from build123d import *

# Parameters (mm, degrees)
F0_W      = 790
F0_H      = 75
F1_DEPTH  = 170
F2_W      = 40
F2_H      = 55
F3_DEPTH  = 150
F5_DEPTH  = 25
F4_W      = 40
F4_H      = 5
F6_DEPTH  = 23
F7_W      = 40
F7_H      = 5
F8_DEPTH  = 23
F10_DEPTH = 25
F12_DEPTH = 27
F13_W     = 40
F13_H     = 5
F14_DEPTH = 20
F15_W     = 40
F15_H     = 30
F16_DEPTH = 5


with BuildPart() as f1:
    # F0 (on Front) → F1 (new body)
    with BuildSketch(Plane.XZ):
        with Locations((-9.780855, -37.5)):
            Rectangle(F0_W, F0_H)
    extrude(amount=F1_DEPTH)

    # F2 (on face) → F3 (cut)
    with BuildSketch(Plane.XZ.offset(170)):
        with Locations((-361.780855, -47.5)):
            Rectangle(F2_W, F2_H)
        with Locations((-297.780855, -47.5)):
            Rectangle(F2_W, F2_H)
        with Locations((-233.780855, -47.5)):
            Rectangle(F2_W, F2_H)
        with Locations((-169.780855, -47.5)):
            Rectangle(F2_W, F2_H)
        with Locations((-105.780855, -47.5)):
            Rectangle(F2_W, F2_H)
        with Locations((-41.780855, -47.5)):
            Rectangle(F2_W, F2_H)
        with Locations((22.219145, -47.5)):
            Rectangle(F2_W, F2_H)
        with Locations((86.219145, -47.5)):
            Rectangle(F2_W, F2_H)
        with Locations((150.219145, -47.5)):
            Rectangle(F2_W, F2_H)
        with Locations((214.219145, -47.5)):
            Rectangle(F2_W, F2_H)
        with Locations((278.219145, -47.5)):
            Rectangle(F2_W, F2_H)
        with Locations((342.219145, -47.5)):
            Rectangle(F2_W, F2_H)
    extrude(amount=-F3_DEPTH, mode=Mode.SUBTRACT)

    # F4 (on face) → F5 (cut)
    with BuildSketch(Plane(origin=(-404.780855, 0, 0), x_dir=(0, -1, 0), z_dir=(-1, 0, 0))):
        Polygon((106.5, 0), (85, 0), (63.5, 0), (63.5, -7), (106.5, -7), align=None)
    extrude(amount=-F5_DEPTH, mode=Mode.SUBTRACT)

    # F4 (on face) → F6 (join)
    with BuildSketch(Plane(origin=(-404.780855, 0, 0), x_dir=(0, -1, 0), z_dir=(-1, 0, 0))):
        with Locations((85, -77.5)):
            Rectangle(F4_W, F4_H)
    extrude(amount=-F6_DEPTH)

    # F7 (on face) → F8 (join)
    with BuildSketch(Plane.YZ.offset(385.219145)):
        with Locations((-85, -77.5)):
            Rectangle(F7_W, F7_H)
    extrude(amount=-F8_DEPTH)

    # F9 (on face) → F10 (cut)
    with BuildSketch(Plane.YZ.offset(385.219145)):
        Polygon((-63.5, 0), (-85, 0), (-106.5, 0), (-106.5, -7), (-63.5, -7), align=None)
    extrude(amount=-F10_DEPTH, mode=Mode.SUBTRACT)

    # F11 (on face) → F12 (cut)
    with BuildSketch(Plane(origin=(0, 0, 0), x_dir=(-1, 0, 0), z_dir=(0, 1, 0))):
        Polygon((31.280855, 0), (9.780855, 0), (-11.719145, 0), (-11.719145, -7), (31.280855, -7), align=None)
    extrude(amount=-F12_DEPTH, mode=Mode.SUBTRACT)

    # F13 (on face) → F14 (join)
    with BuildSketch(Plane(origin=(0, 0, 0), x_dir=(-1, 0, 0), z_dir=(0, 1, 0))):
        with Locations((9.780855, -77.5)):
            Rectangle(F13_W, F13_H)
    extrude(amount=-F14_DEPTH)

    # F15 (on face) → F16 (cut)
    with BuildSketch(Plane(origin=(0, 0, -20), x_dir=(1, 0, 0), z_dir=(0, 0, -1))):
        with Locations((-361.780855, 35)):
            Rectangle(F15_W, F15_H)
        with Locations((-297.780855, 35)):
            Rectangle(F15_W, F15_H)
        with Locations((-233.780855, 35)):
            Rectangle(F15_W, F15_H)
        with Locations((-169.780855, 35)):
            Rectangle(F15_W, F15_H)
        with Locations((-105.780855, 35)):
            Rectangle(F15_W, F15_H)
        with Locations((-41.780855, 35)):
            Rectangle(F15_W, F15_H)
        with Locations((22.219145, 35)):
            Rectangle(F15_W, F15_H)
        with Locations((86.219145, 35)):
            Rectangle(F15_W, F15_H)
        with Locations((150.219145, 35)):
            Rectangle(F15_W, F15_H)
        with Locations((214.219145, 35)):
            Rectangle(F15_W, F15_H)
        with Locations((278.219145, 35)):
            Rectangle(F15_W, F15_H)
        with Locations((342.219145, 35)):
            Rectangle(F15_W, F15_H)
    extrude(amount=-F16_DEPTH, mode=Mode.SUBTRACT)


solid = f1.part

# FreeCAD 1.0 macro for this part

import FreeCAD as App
import Part
import Sketcher
from FreeCAD import Vector
Q = App.Units.Quantity

doc = App.newDocument("Part")
body = doc.addObject("PartDesign::Body", "Body")

# Sketch on XZ plane
sketch1 = body.newObject("Sketcher::SketchObject", "Sketch")
sketch1.AttachmentSupport = (doc.getObject("XZ_Plane"), [""])
sketch1.MapMode = "FlatFace"
sketch1.addGeometry([
    Part.LineSegment(Vector(-405, 0, 0), Vector(-405, -75, 0)),
    Part.LineSegment(Vector(-405, -75, 0), Vector(385, -75, 0)),
    Part.LineSegment(Vector(385, -75, 0), Vector(385, 0, 0)),
    Part.LineSegment(Vector(385, 0, 0), Vector(-405, 0, 0)),
], False)
sketch1.addConstraint([
    Sketcher.Constraint("Coincident", 0, 2, 1, 1),
    Sketcher.Constraint("Coincident", 1, 2, 2, 1),
    Sketcher.Constraint("Coincident", 2, 2, 3, 1),
    Sketcher.Constraint("Coincident", 3, 2, 0, 1),
    Sketcher.Constraint("Vertical", 0),
    Sketcher.Constraint("Horizontal", 1),
    Sketcher.Constraint("Vertical", 2),
    Sketcher.Constraint("Horizontal", 3),
    Sketcher.Constraint("PointOnObject", 2, 2, -1),
    Sketcher.Constraint("DistanceX", 1, 1, 1, 2, Q("790 mm")),
    Sketcher.Constraint("DistanceY", 0, 2, 0, 1, Q("75 mm")),
    Sketcher.Constraint("DistanceX", 0, 2, -1, 1, Q("404.780855 mm")),
])
pad1 = body.newObject("PartDesign::Pad", "Pad")
pad1.Profile = sketch1
pad1.Length = 170

# Sketch on XZ plane
sketch2 = body.newObject("Sketcher::SketchObject", "Sketch001")
sketch2.AttachmentSupport = (doc.getObject("XZ_Plane"), [""])
sketch2.MapMode = "FlatFace"
sketch2.AttachmentOffset = App.Placement(Vector(0, 0, 170), App.Rotation())
sketch2.addGeometry([
    Part.LineSegment(Vector(-382, -20, 0), Vector(-382, -75, 0)),  # 0
    Part.LineSegment(Vector(-382, -75, 0), Vector(-342, -75, 0)),  # 1
    Part.LineSegment(Vector(-342, -75, 0), Vector(-342, -20, 0)),  # 2
    Part.LineSegment(Vector(-342, -20, 0), Vector(-382, -20, 0)),  # 3
    Part.LineSegment(Vector(-318, -20, 0), Vector(-318, -75, 0)),  # 4
    Part.LineSegment(Vector(-318, -75, 0), Vector(-278, -75, 0)),  # 5
    Part.LineSegment(Vector(-278, -75, 0), Vector(-278, -20, 0)),  # 6
    Part.LineSegment(Vector(-278, -20, 0), Vector(-318, -20, 0)),  # 7
    Part.LineSegment(Vector(-254, -20, 0), Vector(-254, -75, 0)),  # 8
    Part.LineSegment(Vector(-254, -75, 0), Vector(-214, -75, 0)),  # 9
    Part.LineSegment(Vector(-214, -75, 0), Vector(-214, -20, 0)),  # 10
    Part.LineSegment(Vector(-214, -20, 0), Vector(-254, -20, 0)),  # 11
    Part.LineSegment(Vector(-190, -20, 0), Vector(-190, -75, 0)),  # 12
    Part.LineSegment(Vector(-190, -75, 0), Vector(-150, -75, 0)),  # 13
    Part.LineSegment(Vector(-150, -75, 0), Vector(-150, -20, 0)),  # 14
    Part.LineSegment(Vector(-150, -20, 0), Vector(-190, -20, 0)),  # 15
    Part.LineSegment(Vector(-126, -20, 0), Vector(-126, -75, 0)),  # 16
    Part.LineSegment(Vector(-126, -75, 0), Vector(-86, -75, 0)),  # 17
    Part.LineSegment(Vector(-86, -75, 0), Vector(-86, -20, 0)),  # 18
    Part.LineSegment(Vector(-86, -20, 0), Vector(-126, -20, 0)),  # 19
    Part.LineSegment(Vector(-62, -20, 0), Vector(-62, -75, 0)),  # 20
    Part.LineSegment(Vector(-62, -75, 0), Vector(-22, -75, 0)),  # 21
    Part.LineSegment(Vector(-22, -75, 0), Vector(-22, -20, 0)),  # 22
    Part.LineSegment(Vector(-22, -20, 0), Vector(-62, -20, 0)),  # 23
    Part.LineSegment(Vector(2, -20, 0), Vector(2, -75, 0)),  # 24
    Part.LineSegment(Vector(2, -75, 0), Vector(42, -75, 0)),  # 25
    Part.LineSegment(Vector(42, -75, 0), Vector(42, -20, 0)),  # 26
    Part.LineSegment(Vector(42, -20, 0), Vector(2, -20, 0)),  # 27
    Part.LineSegment(Vector(66, -20, 0), Vector(66, -75, 0)),  # 28
    Part.LineSegment(Vector(66, -75, 0), Vector(106, -75, 0)),  # 29
    Part.LineSegment(Vector(106, -75, 0), Vector(106, -20, 0)),  # 30
    Part.LineSegment(Vector(106, -20, 0), Vector(66, -20, 0)),  # 31
    Part.LineSegment(Vector(130, -20, 0), Vector(130, -75, 0)),  # 32
    Part.LineSegment(Vector(130, -75, 0), Vector(170, -75, 0)),  # 33
    Part.LineSegment(Vector(170, -75, 0), Vector(170, -20, 0)),  # 34
    Part.LineSegment(Vector(170, -20, 0), Vector(130, -20, 0)),  # 35
    Part.LineSegment(Vector(194, -20, 0), Vector(194, -75, 0)),  # 36
    Part.LineSegment(Vector(194, -75, 0), Vector(234, -75, 0)),  # 37
    Part.LineSegment(Vector(234, -75, 0), Vector(234, -20, 0)),  # 38
    Part.LineSegment(Vector(234, -20, 0), Vector(194, -20, 0)),  # 39
    Part.LineSegment(Vector(258, -20, 0), Vector(258, -75, 0)),  # 40
    Part.LineSegment(Vector(258, -75, 0), Vector(298, -75, 0)),  # 41
    Part.LineSegment(Vector(298, -75, 0), Vector(298, -20, 0)),  # 42
    Part.LineSegment(Vector(298, -20, 0), Vector(258, -20, 0)),  # 43
    Part.LineSegment(Vector(322, -20, 0), Vector(322, -75, 0)),  # 44
    Part.LineSegment(Vector(322, -75, 0), Vector(362, -75, 0)),  # 45
    Part.LineSegment(Vector(362, -75, 0), Vector(362, -20, 0)),  # 46
    Part.LineSegment(Vector(362, -20, 0), Vector(322, -20, 0)),  # 47
], False)
sketch2.addConstraint([
    Sketcher.Constraint("Coincident", 0, 2, 1, 1),
    Sketcher.Constraint("Coincident", 1, 2, 2, 1),
    Sketcher.Constraint("Coincident", 2, 2, 3, 1),
    Sketcher.Constraint("Coincident", 3, 2, 0, 1),
    Sketcher.Constraint("Coincident", 4, 2, 5, 1),
    Sketcher.Constraint("Coincident", 5, 2, 6, 1),
    Sketcher.Constraint("Coincident", 6, 2, 7, 1),
    Sketcher.Constraint("Coincident", 7, 2, 4, 1),
    Sketcher.Constraint("Coincident", 8, 2, 9, 1),
    Sketcher.Constraint("Coincident", 9, 2, 10, 1),
    Sketcher.Constraint("Coincident", 10, 2, 11, 1),
    Sketcher.Constraint("Coincident", 11, 2, 8, 1),
    Sketcher.Constraint("Coincident", 12, 2, 13, 1),
    Sketcher.Constraint("Coincident", 13, 2, 14, 1),
    Sketcher.Constraint("Coincident", 14, 2, 15, 1),
    Sketcher.Constraint("Coincident", 15, 2, 12, 1),
    Sketcher.Constraint("Coincident", 16, 2, 17, 1),
    Sketcher.Constraint("Coincident", 17, 2, 18, 1),
    Sketcher.Constraint("Coincident", 18, 2, 19, 1),
    Sketcher.Constraint("Coincident", 19, 2, 16, 1),
    Sketcher.Constraint("Coincident", 20, 2, 21, 1),
    Sketcher.Constraint("Coincident", 21, 2, 22, 1),
    Sketcher.Constraint("Coincident", 22, 2, 23, 1),
    Sketcher.Constraint("Coincident", 23, 2, 20, 1),
    Sketcher.Constraint("Coincident", 24, 2, 25, 1),
    Sketcher.Constraint("Coincident", 25, 2, 26, 1),
    Sketcher.Constraint("Coincident", 26, 2, 27, 1),
    Sketcher.Constraint("Coincident", 27, 2, 24, 1),
    Sketcher.Constraint("Coincident", 28, 2, 29, 1),
    Sketcher.Constraint("Coincident", 29, 2, 30, 1),
    Sketcher.Constraint("Coincident", 30, 2, 31, 1),
    Sketcher.Constraint("Coincident", 31, 2, 28, 1),
    Sketcher.Constraint("Coincident", 32, 2, 33, 1),
    Sketcher.Constraint("Coincident", 33, 2, 34, 1),
    Sketcher.Constraint("Coincident", 34, 2, 35, 1),
    Sketcher.Constraint("Coincident", 35, 2, 32, 1),
    Sketcher.Constraint("Coincident", 36, 2, 37, 1),
    Sketcher.Constraint("Coincident", 37, 2, 38, 1),
    Sketcher.Constraint("Coincident", 38, 2, 39, 1),
    Sketcher.Constraint("Coincident", 39, 2, 36, 1),
    Sketcher.Constraint("Coincident", 40, 2, 41, 1),
    Sketcher.Constraint("Coincident", 41, 2, 42, 1),
    Sketcher.Constraint("Coincident", 42, 2, 43, 1),
    Sketcher.Constraint("Coincident", 43, 2, 40, 1),
    Sketcher.Constraint("Coincident", 44, 2, 45, 1),
    Sketcher.Constraint("Coincident", 45, 2, 46, 1),
    Sketcher.Constraint("Coincident", 46, 2, 47, 1),
    Sketcher.Constraint("Coincident", 47, 2, 44, 1),
    Sketcher.Constraint("Vertical", 0),
    Sketcher.Constraint("Horizontal", 1),
    Sketcher.Constraint("Vertical", 2),
    Sketcher.Constraint("Horizontal", 3),
    Sketcher.Constraint("Vertical", 4),
    Sketcher.Constraint("Horizontal", 5),
    Sketcher.Constraint("Vertical", 6),
    Sketcher.Constraint("Horizontal", 7),
    Sketcher.Constraint("Vertical", 8),
    Sketcher.Constraint("Horizontal", 9),
    Sketcher.Constraint("Vertical", 10),
    Sketcher.Constraint("Horizontal", 11),
    Sketcher.Constraint("Vertical", 12),
    Sketcher.Constraint("Horizontal", 13),
    Sketcher.Constraint("Vertical", 14),
    Sketcher.Constraint("Horizontal", 15),
    Sketcher.Constraint("Vertical", 16),
    Sketcher.Constraint("Horizontal", 17),
    Sketcher.Constraint("Vertical", 18),
    Sketcher.Constraint("Horizontal", 19),
    Sketcher.Constraint("Vertical", 20),
    Sketcher.Constraint("Horizontal", 21),
    Sketcher.Constraint("Vertical", 22),
    Sketcher.Constraint("Horizontal", 23),
    Sketcher.Constraint("Vertical", 24),
    Sketcher.Constraint("Horizontal", 25),
    Sketcher.Constraint("Vertical", 26),
    Sketcher.Constraint("Horizontal", 27),
    Sketcher.Constraint("Vertical", 28),
    Sketcher.Constraint("Horizontal", 29),
    Sketcher.Constraint("Vertical", 30),
    Sketcher.Constraint("Horizontal", 31),
    Sketcher.Constraint("Vertical", 32),
    Sketcher.Constraint("Horizontal", 33),
    Sketcher.Constraint("Vertical", 34),
    Sketcher.Constraint("Horizontal", 35),
    Sketcher.Constraint("Vertical", 36),
    Sketcher.Constraint("Horizontal", 37),
    Sketcher.Constraint("Vertical", 38),
    Sketcher.Constraint("Horizontal", 39),
    Sketcher.Constraint("Vertical", 40),
    Sketcher.Constraint("Horizontal", 41),
    Sketcher.Constraint("Vertical", 42),
    Sketcher.Constraint("Horizontal", 43),
    Sketcher.Constraint("Vertical", 44),
    Sketcher.Constraint("Horizontal", 45),
    Sketcher.Constraint("Vertical", 46),
    Sketcher.Constraint("Horizontal", 47),
    Sketcher.Constraint("Horizontal", 1, 2, 4, 2),
    Sketcher.Constraint("Horizontal", 3, 2, 6, 2),
    Sketcher.Constraint("Horizontal", 5, 2, 8, 2),
    Sketcher.Constraint("Horizontal", 7, 2, 10, 2),
    Sketcher.Constraint("Horizontal", 9, 2, 12, 2),
    Sketcher.Constraint("Horizontal", 11, 2, 14, 2),
    Sketcher.Constraint("Horizontal", 13, 2, 16, 2),
    Sketcher.Constraint("Horizontal", 15, 2, 18, 2),
    Sketcher.Constraint("Horizontal", 17, 2, 20, 2),
    Sketcher.Constraint("Horizontal", 19, 2, 22, 2),
    Sketcher.Constraint("Horizontal", 21, 2, 24, 2),
    Sketcher.Constraint("Horizontal", 23, 2, 26, 2),
    Sketcher.Constraint("Horizontal", 25, 2, 28, 2),
    Sketcher.Constraint("Horizontal", 27, 2, 30, 2),
    Sketcher.Constraint("Horizontal", 29, 2, 32, 2),
    Sketcher.Constraint("Horizontal", 31, 2, 34, 2),
    Sketcher.Constraint("Horizontal", 33, 2, 36, 2),
    Sketcher.Constraint("Horizontal", 35, 2, 38, 2),
    Sketcher.Constraint("Horizontal", 37, 2, 40, 2),
    Sketcher.Constraint("Horizontal", 39, 2, 42, 2),
    Sketcher.Constraint("Horizontal", 41, 2, 44, 2),
    Sketcher.Constraint("Horizontal", 43, 2, 46, 2),
    Sketcher.Constraint("Equal", 3, 5),
    Sketcher.Constraint("Equal", 7, 9),
    Sketcher.Constraint("Equal", 11, 13),
    Sketcher.Constraint("Equal", 15, 17),
    Sketcher.Constraint("Equal", 19, 21),
    Sketcher.Constraint("Equal", 23, 25),
    Sketcher.Constraint("Equal", 27, 29),
    Sketcher.Constraint("Equal", 31, 33),
    Sketcher.Constraint("Equal", 35, 37),
    Sketcher.Constraint("Equal", 39, 41),
    Sketcher.Constraint("Equal", 43, 45),
    Sketcher.Constraint("DistanceX", 1, 1, 1, 2, Q("40 mm")),
    Sketcher.Constraint("DistanceY", 0, 2, 0, 1, Q("55 mm")),
    Sketcher.Constraint("DistanceY", 0, 2, -1, 1, Q("75 mm")),
    Sketcher.Constraint("DistanceX", 1, 2, 4, 2, Q("24 mm")),
    Sketcher.Constraint("DistanceX", 5, 2, 8, 2, Q("24 mm")),
    Sketcher.Constraint("DistanceX", 9, 2, 12, 2, Q("24 mm")),
    Sketcher.Constraint("DistanceX", 13, 2, 16, 2, Q("24 mm")),
    Sketcher.Constraint("DistanceX", 17, 2, 20, 2, Q("24 mm")),
    Sketcher.Constraint("DistanceX", 21, 2, 24, 2, Q("24 mm")),
    Sketcher.Constraint("DistanceX", 25, 2, 28, 2, Q("24 mm")),
    Sketcher.Constraint("DistanceX", 29, 2, 32, 2, Q("24 mm")),
    Sketcher.Constraint("DistanceX", 33, 2, 36, 2, Q("24 mm")),
    Sketcher.Constraint("DistanceX", 37, 2, 40, 2, Q("24 mm")),
    Sketcher.Constraint("DistanceX", 41, 2, 44, 2, Q("24 mm")),
    Sketcher.Constraint("DistanceX", 0, 2, -1, 1, Q("381.780855 mm")),
])
pocket1 = body.newObject("PartDesign::Pocket", "Pocket")
pocket1.Profile = sketch2
pocket1.Length = 150

# Sketch on YZ plane
sketch3 = body.newObject("Sketcher::SketchObject", "Sketch002")
sketch3.AttachmentSupport = (doc.getObject("YZ_Plane"), [""])
sketch3.MapMode = "FlatFace"
sketch3.AttachmentOffset = App.Placement(Vector(0, 0, -404.780855), App.Rotation())
sketch3.addGeometry([
    Part.LineSegment(Vector(-106, 0, 0), Vector(-64, 0, 0)),
    Part.LineSegment(Vector(-64, 0, 0), Vector(-64, -7, 0)),
    Part.LineSegment(Vector(-64, -7, 0), Vector(-106, -7, 0)),
    Part.LineSegment(Vector(-106, -7, 0), Vector(-106, 0, 0)),
], False)
sketch3.addConstraint([
    Sketcher.Constraint("Coincident", 0, 2, 1, 1),
    Sketcher.Constraint("Coincident", 1, 2, 2, 1),
    Sketcher.Constraint("Coincident", 2, 2, 3, 1),
    Sketcher.Constraint("Coincident", 3, 2, 0, 1),
    Sketcher.Constraint("Horizontal", 0),
    Sketcher.Constraint("Vertical", 1),
    Sketcher.Constraint("Horizontal", 2),
    Sketcher.Constraint("Vertical", 3),
    Sketcher.Constraint("PointOnObject", 0, 2, -1),
    Sketcher.Constraint("DistanceX", 0, 1, 0, 2, Q("43 mm")),
    Sketcher.Constraint("DistanceY", 1, 2, 1, 1, Q("7 mm")),
    Sketcher.Constraint("DistanceX", 0, 2, -1, 1, Q("63.5 mm")),
])
pocket2 = body.newObject("PartDesign::Pocket", "Pocket001")
pocket2.Profile = sketch3
pocket2.Length = 25
pocket2.Reversed = True

# Sketch on YZ plane
sketch4 = body.newObject("Sketcher::SketchObject", "Sketch003")
sketch4.AttachmentSupport = (doc.getObject("YZ_Plane"), [""])
sketch4.MapMode = "FlatFace"
sketch4.AttachmentOffset = App.Placement(Vector(0, 0, -404.780855), App.Rotation())
sketch4.addGeometry([
    Part.LineSegment(Vector(-65, -75, 0), Vector(-65, -80, 0)),
    Part.LineSegment(Vector(-65, -80, 0), Vector(-105, -80, 0)),
    Part.LineSegment(Vector(-105, -80, 0), Vector(-105, -75, 0)),
    Part.LineSegment(Vector(-105, -75, 0), Vector(-65, -75, 0)),
], False)
sketch4.addConstraint([
    Sketcher.Constraint("Coincident", 0, 2, 1, 1),
    Sketcher.Constraint("Coincident", 1, 2, 2, 1),
    Sketcher.Constraint("Coincident", 2, 2, 3, 1),
    Sketcher.Constraint("Coincident", 3, 2, 0, 1),
    Sketcher.Constraint("Vertical", 0),
    Sketcher.Constraint("Horizontal", 1),
    Sketcher.Constraint("Vertical", 2),
    Sketcher.Constraint("Horizontal", 3),
    Sketcher.Constraint("DistanceX", 1, 2, 1, 1, Q("40 mm")),
    Sketcher.Constraint("DistanceY", 0, 2, 0, 1, Q("5 mm")),
    Sketcher.Constraint("DistanceX", 0, 2, -1, 1, Q("65 mm")),
    Sketcher.Constraint("DistanceY", 0, 2, -1, 1, Q("80 mm")),
])
pad2 = body.newObject("PartDesign::Pad", "Pad001")
pad2.Profile = sketch4
pad2.Length = 23

# Sketch on YZ plane
sketch5 = body.newObject("Sketcher::SketchObject", "Sketch004")
sketch5.AttachmentSupport = (doc.getObject("YZ_Plane"), [""])
sketch5.MapMode = "FlatFace"
sketch5.AttachmentOffset = App.Placement(Vector(0, 0, 385.219145), App.Rotation())
sketch5.addGeometry([
    Part.LineSegment(Vector(-105, -75, 0), Vector(-105, -80, 0)),
    Part.LineSegment(Vector(-105, -80, 0), Vector(-65, -80, 0)),
    Part.LineSegment(Vector(-65, -80, 0), Vector(-65, -75, 0)),
    Part.LineSegment(Vector(-65, -75, 0), Vector(-105, -75, 0)),
], False)
sketch5.addConstraint([
    Sketcher.Constraint("Coincident", 0, 2, 1, 1),
    Sketcher.Constraint("Coincident", 1, 2, 2, 1),
    Sketcher.Constraint("Coincident", 2, 2, 3, 1),
    Sketcher.Constraint("Coincident", 3, 2, 0, 1),
    Sketcher.Constraint("Vertical", 0),
    Sketcher.Constraint("Horizontal", 1),
    Sketcher.Constraint("Vertical", 2),
    Sketcher.Constraint("Horizontal", 3),
    Sketcher.Constraint("DistanceX", 1, 1, 1, 2, Q("40 mm")),
    Sketcher.Constraint("DistanceY", 0, 2, 0, 1, Q("5 mm")),
    Sketcher.Constraint("DistanceX", 0, 2, -1, 1, Q("105 mm")),
    Sketcher.Constraint("DistanceY", 0, 2, -1, 1, Q("80 mm")),
])
pad3 = body.newObject("PartDesign::Pad", "Pad002")
pad3.Profile = sketch5
pad3.Length = 23
pad3.Reversed = True

# Sketch on YZ plane
sketch6 = body.newObject("Sketcher::SketchObject", "Sketch005")
sketch6.AttachmentSupport = (doc.getObject("YZ_Plane"), [""])
sketch6.MapMode = "FlatFace"
sketch6.AttachmentOffset = App.Placement(Vector(0, 0, 385.219145), App.Rotation())
sketch6.addGeometry([
    Part.LineSegment(Vector(-64, 0, 0), Vector(-106, 0, 0)),
    Part.LineSegment(Vector(-106, 0, 0), Vector(-106, -7, 0)),
    Part.LineSegment(Vector(-106, -7, 0), Vector(-64, -7, 0)),
    Part.LineSegment(Vector(-64, -7, 0), Vector(-64, 0, 0)),
], False)
sketch6.addConstraint([
    Sketcher.Constraint("Coincident", 0, 2, 1, 1),
    Sketcher.Constraint("Coincident", 1, 2, 2, 1),
    Sketcher.Constraint("Coincident", 2, 2, 3, 1),
    Sketcher.Constraint("Coincident", 3, 2, 0, 1),
    Sketcher.Constraint("Horizontal", 0),
    Sketcher.Constraint("Vertical", 1),
    Sketcher.Constraint("Horizontal", 2),
    Sketcher.Constraint("Vertical", 3),
    Sketcher.Constraint("PointOnObject", 0, 2, -1),
    Sketcher.Constraint("DistanceX", 0, 2, 0, 1, Q("43 mm")),
    Sketcher.Constraint("DistanceY", 1, 2, 1, 1, Q("7 mm")),
    Sketcher.Constraint("DistanceX", 0, 2, -1, 1, Q("106.5 mm")),
])
pocket3 = body.newObject("PartDesign::Pocket", "Pocket002")
pocket3.Profile = sketch6
pocket3.Length = 25

# Sketch on XZ plane
sketch7 = body.newObject("Sketcher::SketchObject", "Sketch006")
sketch7.AttachmentSupport = (doc.getObject("XZ_Plane"), [""])
sketch7.MapMode = "FlatFace"
sketch7.addGeometry([
    Part.LineSegment(Vector(-31, 0, 0), Vector(12, 0, 0)),
    Part.LineSegment(Vector(12, 0, 0), Vector(12, -7, 0)),
    Part.LineSegment(Vector(12, -7, 0), Vector(-31, -7, 0)),
    Part.LineSegment(Vector(-31, -7, 0), Vector(-31, 0, 0)),
], False)
sketch7.addConstraint([
    Sketcher.Constraint("Coincident", 0, 2, 1, 1),
    Sketcher.Constraint("Coincident", 1, 2, 2, 1),
    Sketcher.Constraint("Coincident", 2, 2, 3, 1),
    Sketcher.Constraint("Coincident", 3, 2, 0, 1),
    Sketcher.Constraint("Horizontal", 0),
    Sketcher.Constraint("Vertical", 1),
    Sketcher.Constraint("Horizontal", 2),
    Sketcher.Constraint("Vertical", 3),
    Sketcher.Constraint("PointOnObject", 0, 2, -1),
    Sketcher.Constraint("DistanceX", 0, 1, 0, 2, Q("43 mm")),
    Sketcher.Constraint("DistanceY", 1, 2, 1, 1, Q("7 mm")),
    Sketcher.Constraint("DistanceX", -1, 1, 0, 2, Q("11.719145 mm")),
])
pocket4 = body.newObject("PartDesign::Pocket", "Pocket003")
pocket4.Profile = sketch7
pocket4.Length = 27
pocket4.Reversed = True

# Sketch on XZ plane
sketch8 = body.newObject("Sketcher::SketchObject", "Sketch007")
sketch8.AttachmentSupport = (doc.getObject("XZ_Plane"), [""])
sketch8.MapMode = "FlatFace"
sketch8.addGeometry([
    Part.LineSegment(Vector(10, -75, 0), Vector(10, -80, 0)),
    Part.LineSegment(Vector(10, -80, 0), Vector(-30, -80, 0)),
    Part.LineSegment(Vector(-30, -80, 0), Vector(-30, -75, 0)),
    Part.LineSegment(Vector(-30, -75, 0), Vector(10, -75, 0)),
], False)
sketch8.addConstraint([
    Sketcher.Constraint("Coincident", 0, 2, 1, 1),
    Sketcher.Constraint("Coincident", 1, 2, 2, 1),
    Sketcher.Constraint("Coincident", 2, 2, 3, 1),
    Sketcher.Constraint("Coincident", 3, 2, 0, 1),
    Sketcher.Constraint("Vertical", 0),
    Sketcher.Constraint("Horizontal", 1),
    Sketcher.Constraint("Vertical", 2),
    Sketcher.Constraint("Horizontal", 3),
    Sketcher.Constraint("DistanceX", 1, 2, 1, 1, Q("40 mm")),
    Sketcher.Constraint("DistanceY", 0, 2, 0, 1, Q("5 mm")),
    Sketcher.Constraint("DistanceY", 0, 2, -1, 1, Q("80 mm")),
    Sketcher.Constraint("DistanceX", -1, 1, 0, 2, Q("10.219145 mm")),
])
pad4 = body.newObject("PartDesign::Pad", "Pad003")
pad4.Profile = sketch8
pad4.Length = 20

# Sketch on XY plane
sketch9 = body.newObject("Sketcher::SketchObject", "Sketch008")
sketch9.AttachmentSupport = (doc.getObject("XY_Plane"), [""])
sketch9.MapMode = "FlatFace"
sketch9.AttachmentOffset = App.Placement(Vector(0, 0, -20), App.Rotation())
sketch9.addGeometry([
    Part.LineSegment(Vector(-382, -50, 0), Vector(-382, -20, 0)),  # 0
    Part.LineSegment(Vector(-382, -20, 0), Vector(-342, -20, 0)),  # 1
    Part.LineSegment(Vector(-342, -20, 0), Vector(-342, -50, 0)),  # 2
    Part.LineSegment(Vector(-342, -50, 0), Vector(-382, -50, 0)),  # 3
    Part.LineSegment(Vector(-318, -50, 0), Vector(-318, -20, 0)),  # 4
    Part.LineSegment(Vector(-318, -20, 0), Vector(-278, -20, 0)),  # 5
    Part.LineSegment(Vector(-278, -20, 0), Vector(-278, -50, 0)),  # 6
    Part.LineSegment(Vector(-278, -50, 0), Vector(-318, -50, 0)),  # 7
    Part.LineSegment(Vector(-254, -50, 0), Vector(-254, -20, 0)),  # 8
    Part.LineSegment(Vector(-254, -20, 0), Vector(-214, -20, 0)),  # 9
    Part.LineSegment(Vector(-214, -20, 0), Vector(-214, -50, 0)),  # 10
    Part.LineSegment(Vector(-214, -50, 0), Vector(-254, -50, 0)),  # 11
    Part.LineSegment(Vector(-190, -50, 0), Vector(-190, -20, 0)),  # 12
    Part.LineSegment(Vector(-190, -20, 0), Vector(-150, -20, 0)),  # 13
    Part.LineSegment(Vector(-150, -20, 0), Vector(-150, -50, 0)),  # 14
    Part.LineSegment(Vector(-150, -50, 0), Vector(-190, -50, 0)),  # 15
    Part.LineSegment(Vector(-126, -50, 0), Vector(-126, -20, 0)),  # 16
    Part.LineSegment(Vector(-126, -20, 0), Vector(-86, -20, 0)),  # 17
    Part.LineSegment(Vector(-86, -20, 0), Vector(-86, -50, 0)),  # 18
    Part.LineSegment(Vector(-86, -50, 0), Vector(-126, -50, 0)),  # 19
    Part.LineSegment(Vector(-62, -50, 0), Vector(-62, -20, 0)),  # 20
    Part.LineSegment(Vector(-62, -20, 0), Vector(-22, -20, 0)),  # 21
    Part.LineSegment(Vector(-22, -20, 0), Vector(-22, -50, 0)),  # 22
    Part.LineSegment(Vector(-22, -50, 0), Vector(-62, -50, 0)),  # 23
    Part.LineSegment(Vector(2, -50, 0), Vector(2, -20, 0)),  # 24
    Part.LineSegment(Vector(2, -20, 0), Vector(42, -20, 0)),  # 25
    Part.LineSegment(Vector(42, -20, 0), Vector(42, -50, 0)),  # 26
    Part.LineSegment(Vector(42, -50, 0), Vector(2, -50, 0)),  # 27
    Part.LineSegment(Vector(66, -50, 0), Vector(66, -20, 0)),  # 28
    Part.LineSegment(Vector(66, -20, 0), Vector(106, -20, 0)),  # 29
    Part.LineSegment(Vector(106, -20, 0), Vector(106, -50, 0)),  # 30
    Part.LineSegment(Vector(106, -50, 0), Vector(66, -50, 0)),  # 31
    Part.LineSegment(Vector(130, -50, 0), Vector(130, -20, 0)),  # 32
    Part.LineSegment(Vector(130, -20, 0), Vector(170, -20, 0)),  # 33
    Part.LineSegment(Vector(170, -20, 0), Vector(170, -50, 0)),  # 34
    Part.LineSegment(Vector(170, -50, 0), Vector(130, -50, 0)),  # 35
    Part.LineSegment(Vector(194, -50, 0), Vector(194, -20, 0)),  # 36
    Part.LineSegment(Vector(194, -20, 0), Vector(234, -20, 0)),  # 37
    Part.LineSegment(Vector(234, -20, 0), Vector(234, -50, 0)),  # 38
    Part.LineSegment(Vector(234, -50, 0), Vector(194, -50, 0)),  # 39
    Part.LineSegment(Vector(258, -50, 0), Vector(258, -20, 0)),  # 40
    Part.LineSegment(Vector(258, -20, 0), Vector(298, -20, 0)),  # 41
    Part.LineSegment(Vector(298, -20, 0), Vector(298, -50, 0)),  # 42
    Part.LineSegment(Vector(298, -50, 0), Vector(258, -50, 0)),  # 43
    Part.LineSegment(Vector(322, -50, 0), Vector(322, -20, 0)),  # 44
    Part.LineSegment(Vector(322, -20, 0), Vector(362, -20, 0)),  # 45
    Part.LineSegment(Vector(362, -20, 0), Vector(362, -50, 0)),  # 46
    Part.LineSegment(Vector(362, -50, 0), Vector(322, -50, 0)),  # 47
], False)
sketch9.addConstraint([
    Sketcher.Constraint("Coincident", 0, 2, 1, 1),
    Sketcher.Constraint("Coincident", 1, 2, 2, 1),
    Sketcher.Constraint("Coincident", 2, 2, 3, 1),
    Sketcher.Constraint("Coincident", 3, 2, 0, 1),
    Sketcher.Constraint("Coincident", 4, 2, 5, 1),
    Sketcher.Constraint("Coincident", 5, 2, 6, 1),
    Sketcher.Constraint("Coincident", 6, 2, 7, 1),
    Sketcher.Constraint("Coincident", 7, 2, 4, 1),
    Sketcher.Constraint("Coincident", 8, 2, 9, 1),
    Sketcher.Constraint("Coincident", 9, 2, 10, 1),
    Sketcher.Constraint("Coincident", 10, 2, 11, 1),
    Sketcher.Constraint("Coincident", 11, 2, 8, 1),
    Sketcher.Constraint("Coincident", 12, 2, 13, 1),
    Sketcher.Constraint("Coincident", 13, 2, 14, 1),
    Sketcher.Constraint("Coincident", 14, 2, 15, 1),
    Sketcher.Constraint("Coincident", 15, 2, 12, 1),
    Sketcher.Constraint("Coincident", 16, 2, 17, 1),
    Sketcher.Constraint("Coincident", 17, 2, 18, 1),
    Sketcher.Constraint("Coincident", 18, 2, 19, 1),
    Sketcher.Constraint("Coincident", 19, 2, 16, 1),
    Sketcher.Constraint("Coincident", 20, 2, 21, 1),
    Sketcher.Constraint("Coincident", 21, 2, 22, 1),
    Sketcher.Constraint("Coincident", 22, 2, 23, 1),
    Sketcher.Constraint("Coincident", 23, 2, 20, 1),
    Sketcher.Constraint("Coincident", 24, 2, 25, 1),
    Sketcher.Constraint("Coincident", 25, 2, 26, 1),
    Sketcher.Constraint("Coincident", 26, 2, 27, 1),
    Sketcher.Constraint("Coincident", 27, 2, 24, 1),
    Sketcher.Constraint("Coincident", 28, 2, 29, 1),
    Sketcher.Constraint("Coincident", 29, 2, 30, 1),
    Sketcher.Constraint("Coincident", 30, 2, 31, 1),
    Sketcher.Constraint("Coincident", 31, 2, 28, 1),
    Sketcher.Constraint("Coincident", 32, 2, 33, 1),
    Sketcher.Constraint("Coincident", 33, 2, 34, 1),
    Sketcher.Constraint("Coincident", 34, 2, 35, 1),
    Sketcher.Constraint("Coincident", 35, 2, 32, 1),
    Sketcher.Constraint("Coincident", 36, 2, 37, 1),
    Sketcher.Constraint("Coincident", 37, 2, 38, 1),
    Sketcher.Constraint("Coincident", 38, 2, 39, 1),
    Sketcher.Constraint("Coincident", 39, 2, 36, 1),
    Sketcher.Constraint("Coincident", 40, 2, 41, 1),
    Sketcher.Constraint("Coincident", 41, 2, 42, 1),
    Sketcher.Constraint("Coincident", 42, 2, 43, 1),
    Sketcher.Constraint("Coincident", 43, 2, 40, 1),
    Sketcher.Constraint("Coincident", 44, 2, 45, 1),
    Sketcher.Constraint("Coincident", 45, 2, 46, 1),
    Sketcher.Constraint("Coincident", 46, 2, 47, 1),
    Sketcher.Constraint("Coincident", 47, 2, 44, 1),
    Sketcher.Constraint("Vertical", 0),
    Sketcher.Constraint("Horizontal", 1),
    Sketcher.Constraint("Vertical", 2),
    Sketcher.Constraint("Horizontal", 3),
    Sketcher.Constraint("Vertical", 4),
    Sketcher.Constraint("Horizontal", 5),
    Sketcher.Constraint("Vertical", 6),
    Sketcher.Constraint("Horizontal", 7),
    Sketcher.Constraint("Vertical", 8),
    Sketcher.Constraint("Horizontal", 9),
    Sketcher.Constraint("Vertical", 10),
    Sketcher.Constraint("Horizontal", 11),
    Sketcher.Constraint("Vertical", 12),
    Sketcher.Constraint("Horizontal", 13),
    Sketcher.Constraint("Vertical", 14),
    Sketcher.Constraint("Horizontal", 15),
    Sketcher.Constraint("Vertical", 16),
    Sketcher.Constraint("Horizontal", 17),
    Sketcher.Constraint("Vertical", 18),
    Sketcher.Constraint("Horizontal", 19),
    Sketcher.Constraint("Vertical", 20),
    Sketcher.Constraint("Horizontal", 21),
    Sketcher.Constraint("Vertical", 22),
    Sketcher.Constraint("Horizontal", 23),
    Sketcher.Constraint("Vertical", 24),
    Sketcher.Constraint("Horizontal", 25),
    Sketcher.Constraint("Vertical", 26),
    Sketcher.Constraint("Horizontal", 27),
    Sketcher.Constraint("Vertical", 28),
    Sketcher.Constraint("Horizontal", 29),
    Sketcher.Constraint("Vertical", 30),
    Sketcher.Constraint("Horizontal", 31),
    Sketcher.Constraint("Vertical", 32),
    Sketcher.Constraint("Horizontal", 33),
    Sketcher.Constraint("Vertical", 34),
    Sketcher.Constraint("Horizontal", 35),
    Sketcher.Constraint("Vertical", 36),
    Sketcher.Constraint("Horizontal", 37),
    Sketcher.Constraint("Vertical", 38),
    Sketcher.Constraint("Horizontal", 39),
    Sketcher.Constraint("Vertical", 40),
    Sketcher.Constraint("Horizontal", 41),
    Sketcher.Constraint("Vertical", 42),
    Sketcher.Constraint("Horizontal", 43),
    Sketcher.Constraint("Vertical", 44),
    Sketcher.Constraint("Horizontal", 45),
    Sketcher.Constraint("Vertical", 46),
    Sketcher.Constraint("Horizontal", 47),
    Sketcher.Constraint("Horizontal", 1, 2, 4, 2),
    Sketcher.Constraint("Horizontal", 3, 2, 6, 2),
    Sketcher.Constraint("Horizontal", 5, 2, 8, 2),
    Sketcher.Constraint("Horizontal", 7, 2, 10, 2),
    Sketcher.Constraint("Horizontal", 9, 2, 12, 2),
    Sketcher.Constraint("Horizontal", 11, 2, 14, 2),
    Sketcher.Constraint("Horizontal", 13, 2, 16, 2),
    Sketcher.Constraint("Horizontal", 15, 2, 18, 2),
    Sketcher.Constraint("Horizontal", 17, 2, 20, 2),
    Sketcher.Constraint("Horizontal", 19, 2, 22, 2),
    Sketcher.Constraint("Horizontal", 21, 2, 24, 2),
    Sketcher.Constraint("Horizontal", 23, 2, 26, 2),
    Sketcher.Constraint("Horizontal", 25, 2, 28, 2),
    Sketcher.Constraint("Horizontal", 27, 2, 30, 2),
    Sketcher.Constraint("Horizontal", 29, 2, 32, 2),
    Sketcher.Constraint("Horizontal", 31, 2, 34, 2),
    Sketcher.Constraint("Horizontal", 33, 2, 36, 2),
    Sketcher.Constraint("Horizontal", 35, 2, 38, 2),
    Sketcher.Constraint("Horizontal", 37, 2, 40, 2),
    Sketcher.Constraint("Horizontal", 39, 2, 42, 2),
    Sketcher.Constraint("Horizontal", 41, 2, 44, 2),
    Sketcher.Constraint("Horizontal", 43, 2, 46, 2),
    Sketcher.Constraint("Equal", 3, 5),
    Sketcher.Constraint("Equal", 7, 9),
    Sketcher.Constraint("Equal", 11, 13),
    Sketcher.Constraint("Equal", 15, 17),
    Sketcher.Constraint("Equal", 19, 21),
    Sketcher.Constraint("Equal", 23, 25),
    Sketcher.Constraint("Equal", 27, 29),
    Sketcher.Constraint("Equal", 31, 33),
    Sketcher.Constraint("Equal", 35, 37),
    Sketcher.Constraint("Equal", 39, 41),
    Sketcher.Constraint("Equal", 43, 45),
    Sketcher.Constraint("DistanceX", 1, 1, 1, 2, Q("40 mm")),
    Sketcher.Constraint("DistanceY", 0, 1, 0, 2, Q("30 mm")),
    Sketcher.Constraint("DistanceY", 0, 2, -1, 1, Q("20 mm")),
    Sketcher.Constraint("DistanceX", 1, 2, 4, 2, Q("24 mm")),
    Sketcher.Constraint("DistanceX", 5, 2, 8, 2, Q("24 mm")),
    Sketcher.Constraint("DistanceX", 9, 2, 12, 2, Q("24 mm")),
    Sketcher.Constraint("DistanceX", 13, 2, 16, 2, Q("24 mm")),
    Sketcher.Constraint("DistanceX", 17, 2, 20, 2, Q("24 mm")),
    Sketcher.Constraint("DistanceX", 21, 2, 24, 2, Q("24 mm")),
    Sketcher.Constraint("DistanceX", 25, 2, 28, 2, Q("24 mm")),
    Sketcher.Constraint("DistanceX", 29, 2, 32, 2, Q("24 mm")),
    Sketcher.Constraint("DistanceX", 33, 2, 36, 2, Q("24 mm")),
    Sketcher.Constraint("DistanceX", 37, 2, 40, 2, Q("24 mm")),
    Sketcher.Constraint("DistanceX", 41, 2, 44, 2, Q("24 mm")),
    Sketcher.Constraint("DistanceX", 0, 2, -1, 1, Q("381.780855 mm")),
])
pocket5 = body.newObject("PartDesign::Pocket", "Pocket004")
pocket5.Profile = sketch9
pocket5.Length = 5
pocket5.Reversed = True

doc.recompute()
